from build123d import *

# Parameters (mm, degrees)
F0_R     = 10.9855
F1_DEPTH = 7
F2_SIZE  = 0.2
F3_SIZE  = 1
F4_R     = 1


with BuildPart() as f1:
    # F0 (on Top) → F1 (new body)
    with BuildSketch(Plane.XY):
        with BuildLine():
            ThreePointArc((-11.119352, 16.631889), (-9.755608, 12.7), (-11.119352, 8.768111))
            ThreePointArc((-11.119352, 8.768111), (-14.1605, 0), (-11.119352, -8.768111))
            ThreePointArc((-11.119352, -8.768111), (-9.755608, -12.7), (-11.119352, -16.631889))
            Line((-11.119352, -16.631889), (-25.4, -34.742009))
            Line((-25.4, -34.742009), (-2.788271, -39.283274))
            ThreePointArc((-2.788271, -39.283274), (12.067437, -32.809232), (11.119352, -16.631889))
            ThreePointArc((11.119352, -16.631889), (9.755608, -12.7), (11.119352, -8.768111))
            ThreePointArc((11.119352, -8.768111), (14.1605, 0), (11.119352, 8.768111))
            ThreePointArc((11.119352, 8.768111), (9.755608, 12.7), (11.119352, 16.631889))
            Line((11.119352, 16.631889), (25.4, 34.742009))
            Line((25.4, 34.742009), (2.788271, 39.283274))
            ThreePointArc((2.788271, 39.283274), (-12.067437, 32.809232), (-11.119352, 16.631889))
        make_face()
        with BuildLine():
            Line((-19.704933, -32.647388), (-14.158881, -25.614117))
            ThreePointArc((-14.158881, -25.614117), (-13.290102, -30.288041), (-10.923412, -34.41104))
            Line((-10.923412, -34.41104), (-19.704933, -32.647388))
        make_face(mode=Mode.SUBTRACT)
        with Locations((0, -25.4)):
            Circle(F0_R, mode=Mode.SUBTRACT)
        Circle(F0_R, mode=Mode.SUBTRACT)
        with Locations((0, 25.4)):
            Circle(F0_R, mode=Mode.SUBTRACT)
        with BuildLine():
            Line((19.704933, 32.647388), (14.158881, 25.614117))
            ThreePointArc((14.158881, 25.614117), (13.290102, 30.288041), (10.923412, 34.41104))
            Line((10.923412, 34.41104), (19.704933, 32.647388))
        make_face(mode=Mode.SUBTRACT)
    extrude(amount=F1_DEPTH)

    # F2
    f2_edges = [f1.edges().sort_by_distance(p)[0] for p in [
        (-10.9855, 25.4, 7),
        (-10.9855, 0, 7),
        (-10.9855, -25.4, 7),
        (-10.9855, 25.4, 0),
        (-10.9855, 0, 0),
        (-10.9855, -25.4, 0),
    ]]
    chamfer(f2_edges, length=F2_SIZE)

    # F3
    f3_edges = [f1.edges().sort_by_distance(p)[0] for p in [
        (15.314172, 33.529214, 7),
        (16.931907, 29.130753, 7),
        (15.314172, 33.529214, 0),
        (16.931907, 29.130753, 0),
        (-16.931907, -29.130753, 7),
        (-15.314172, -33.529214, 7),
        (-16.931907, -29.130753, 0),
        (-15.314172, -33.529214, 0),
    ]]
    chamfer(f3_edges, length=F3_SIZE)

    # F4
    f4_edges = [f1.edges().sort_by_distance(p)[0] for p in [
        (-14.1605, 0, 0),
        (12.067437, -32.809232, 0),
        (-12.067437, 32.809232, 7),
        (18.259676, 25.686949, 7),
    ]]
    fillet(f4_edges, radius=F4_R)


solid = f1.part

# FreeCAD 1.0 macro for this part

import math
import FreeCAD as App
import Part
import Sketcher
from FreeCAD import Vector
Q = App.Units.Quantity


def edges_at(feature, points):
    """Names of the edges that pass closest to the given points."""
    edges = feature.Shape.Edges
    near = lambda p: min(range(len(edges)), key=lambda i: edges[i].distToShape(Part.Vertex(*p))[0])
    return sorted({f"Edge{near(p) + 1}" for p in points})

doc = App.newDocument("Part")
body = doc.addObject("PartDesign::Body", "Body")

# Sketch on XY plane
sketch1 = body.newObject("Sketcher::SketchObject", "Sketch")
sketch1.AttachmentSupport = (doc.getObject("XY_Plane"), [""])
sketch1.MapMode = "FlatFace"
sketch1.addGeometry(Part.ArcOfCircle(Part.Circle(Vector(-16, 13, 0), Vector(0, 0, 1), 6), math.radians(-38), math.radians(38)), False)
sketch1.addGeometry(Part.ArcOfCircle(Part.Circle(Vector(0, 0, 0), Vector(0, 0, 1), 14), math.radians(142), math.radians(218)), False)
sketch1.addGeometry(Part.ArcOfCircle(Part.Circle(Vector(-16, -13, 0), Vector(0, 0, 1), 6), math.radians(-38), math.radians(38)), False)
sketch1.addGeometry(Part.LineSegment(Vector(-11, -17, 0), Vector(-25, -35, 0)), False)
sketch1.addGeometry(Part.LineSegment(Vector(-25, -35, 0), Vector(-3, -39, 0)), False)
sketch1.addGeometry(Part.ArcOfCircle(Part.Circle(Vector(0, -25, 0), Vector(0, 0, 1), 14), math.radians(-101), math.radians(38)), False)
sketch1.addGeometry(Part.ArcOfCircle(Part.Circle(Vector(16, -13, 0), Vector(0, 0, 1), 6), math.radians(142), math.radians(218)), False)
sketch1.addGeometry(Part.ArcOfCircle(Part.Circle(Vector(0, 0, 0), Vector(0, 0, 1), 14), math.radians(-38), math.radians(38)), False)
sketch1.addGeometry(Part.ArcOfCircle(Part.Circle(Vector(16, 13, 0), Vector(0, 0, 1), 6), math.radians(142), math.radians(218)), False)
sketch1.addGeometry(Part.LineSegment(Vector(11, 17, 0), Vector(25, 35, 0)), False)
sketch1.addGeometry(Part.LineSegment(Vector(25, 35, 0), Vector(3, 39, 0)), False)
sketch1.addGeometry(Part.ArcOfCircle(Part.Circle(Vector(0, 25, 0), Vector(0, 0, 1), 14), math.radians(79), math.radians(218)), False)
sketch1.addGeometry(Part.LineSegment(Vector(-11, -34, 0), Vector(-20, -33, 0)), False)
sketch1.addGeometry(Part.LineSegment(Vector(-20, -33, 0), Vector(-14, -26, 0)), False)
sketch1.addGeometry(Part.ArcOfCircle(Part.Circle(Vector(0, -25, 0), Vector(0, 0, 1), 14), math.radians(-179), math.radians(-140)), False)
sketch1.addGeometry(Part.Circle(Vector(0, -25, 0), Vector(0, 0, 1), 11), False)
sketch1.addGeometry(Part.Circle(Vector(0, 0, 0), Vector(0, 0, 1), 11), False)
sketch1.addGeometry(Part.Circle(Vector(0, 25, 0), Vector(0, 0, 1), 11), False)
sketch1.addGeometry(Part.LineSegment(Vector(11, 34, 0), Vector(20, 33, 0)), False)
sketch1.addGeometry(Part.LineSegment(Vector(20, 33, 0), Vector(14, 26, 0)), False)
sketch1.addGeometry(Part.ArcOfCircle(Part.Circle(Vector(0, 25, 0), Vector(0, 0, 1), 14), math.radians(1), math.radians(40)), False)
sketch1.addConstraint(Sketcher.Constraint("Tangent", 0, 1, 1, 1))
sketch1.addConstraint(Sketcher.Constraint("Tangent", 1, 2, 2, 2))
sketch1.addConstraint(Sketcher.Constraint("Tangent", 2, 1, 3, 1))
sketch1.addConstraint(Sketcher.Constraint("Coincident", 3, 2, 4, 1))
sketch1.addConstraint(Sketcher.Constraint("Tangent", 4, 2, 5, 1))
sketch1.addConstraint(Sketcher.Constraint("Tangent", 5, 2, 6, 2))
sketch1.addConstraint(Sketcher.Constraint("Tangent", 6, 1, 7, 1))
sketch1.addConstraint(Sketcher.Constraint("Tangent", 7, 2, 8, 2))
sketch1.addConstraint(Sketcher.Constraint("Tangent", 8, 1, 9, 1))
sketch1.addConstraint(Sketcher.Constraint("Coincident", 9, 2, 10, 1))
sketch1.addConstraint(Sketcher.Constraint("Tangent", 10, 2, 11, 1))
sketch1.addConstraint(Sketcher.Constraint("Tangent", 11, 2, 0, 2))
sketch1.addConstraint(Sketcher.Constraint("Coincident", 12, 2, 13, 1))
sketch1.addConstraint(Sketcher.Constraint("Coincident", 13, 2, 14, 1))
sketch1.addConstraint(Sketcher.Constraint("Coincident", 14, 2, 12, 1))
sketch1.addConstraint(Sketcher.Constraint("Coincident", 18, 2, 19, 1))
sketch1.addConstraint(Sketcher.Constraint("Coincident", 19, 2, 20, 1))
sketch1.addConstraint(Sketcher.Constraint("Coincident", 20, 2, 18, 1))
sketch1.addConstraint(Sketcher.Constraint("Coincident", 1, 3, -1, 1))
sketch1.addConstraint(Sketcher.Constraint("Coincident", 7, 3, -1, 1))
sketch1.addConstraint(Sketcher.Constraint("Coincident", 16, 3, -1, 1))
sketch1.addConstraint(Sketcher.Constraint("Coincident", 14, 3, 5, 3))
sketch1.addConstraint(Sketcher.Constraint("Coincident", 15, 3, 5, 3))
sketch1.addConstraint(Sketcher.Constraint("Coincident", 17, 3, 11, 3))
sketch1.addConstraint(Sketcher.Constraint("Coincident", 20, 3, 11, 3))
sketch1.addConstraint(Sketcher.Constraint("Equal", 0, 2))
sketch1.addConstraint(Sketcher.Constraint("Equal", 1, 5))
sketch1.addConstraint(Sketcher.Constraint("Equal", 2, 6))
sketch1.addConstraint(Sketcher.Constraint("Equal", 5, 7))
sketch1.addConstraint(Sketcher.Constraint("Equal", 6, 8))
sketch1.addConstraint(Sketcher.Constraint("Equal", 7, 11))
sketch1.addConstraint(Sketcher.Constraint("Equal", 15, 16))
sketch1.addConstraint(Sketcher.Constraint("Equal", 16, 17))
sketch1.addConstraint(Sketcher.Constraint("Equal", 14, 20))
sketch1.addConstraint(Sketcher.Constraint("Symmetric", 5, 3, 11, 3, -1, 1))
sketch1.addConstraint(Sketcher.Constraint("Symmetric", 2, 1, 8, 1, -1, 1))
sketch1.addConstraint(Sketcher.Constraint("Symmetric", 12, 2, 18, 2, -1, 1))
sketch1.addConstraint(Sketcher.Constraint("Symmetric", 2, 1, 5, 2, -2))
sketch1.addConstraint(Sketcher.Constraint("PointOnObject", 5, 3, -2))
sketch1.addConstraint(Sketcher.Constraint("Parallel", 4, 10))
sketch1.addConstraint(Sketcher.Constraint("Parallel", 10, 12))
sketch1.addConstraint(Sketcher.Constraint("Parallel", 9, 13))
sketch1.addConstraint(Sketcher.Constraint("Parallel", 12, 18))
sketch1.addConstraint(Sketcher.Constraint("Parallel", 13, 19))
sketch1.addConstraint(Sketcher.Constraint("Equal", 12, 13))
sketch1.addConstraint(Sketcher.Constraint("Radius", 0, Q("6.35 mm")))
sketch1.addConstraint(Sketcher.Constraint("Diameter", 15, Q("21.971 mm")))
sketch1.addConstraint(Sketcher.Constraint("DistanceY", -1, 1, 0, 3, Q("12.7 mm")))
sketch1.addConstraint(Sketcher.Constraint("DistanceX", 3, 2, -1, 1, Q("25.4 mm")))
sketch1.addConstraint(Sketcher.Constraint("Radius", 1, Q("14.1605 mm")))
sketch1.addConstraint(Sketcher.Constraint("Radius", 14, Q("14.160505 mm")))
sketch1.addConstraint(Sketcher.Constraint("DistanceY", 12, 2, 2, 1, Q("16.015499 mm")))
pad1 = body.newObject("PartDesign::Pad", "Pad")
pad1.Profile = sketch1
pad1.Length = 7
doc.recompute()

chamfer = body.newObject("PartDesign::Chamfer", "Chamfer")
chamfer.Base = (pad1, edges_at(pad1, [
    (-10.986, 25.4, 7),
    (-10.986, 0, 7),
    (-10.986, -25.4, 7),
    (-10.986, 25.4, 0),
    (-10.986, 0, 0),
    (-10.986, -25.4, 0),
]))
chamfer.Size = 0.2
doc.recompute()

chamfer2 = body.newObject("PartDesign::Chamfer", "Chamfer001")
chamfer2.Base = (chamfer, edges_at(chamfer, [
    (15.314, 33.529, 7),
    (16.932, 29.131, 7),
    (15.314, 33.529, 0),
    (16.932, 29.131, 0),
    (-16.932, -29.131, 7),
    (-15.314, -33.529, 7),
    (-16.932, -29.131, 0),
    (-15.314, -33.529, 0),
]))
chamfer2.Size = 1
doc.recompute()

fillet = body.newObject("PartDesign::Fillet", "Fillet")
fillet.Base = (chamfer2, edges_at(chamfer2, [
    (-14.161, 0, 0),
    (12.067, -32.809, 0),
    (-12.067, 32.809, 7),
    (18.26, 25.687, 7),
]))
fillet.Radius = 1

doc.recompute()
